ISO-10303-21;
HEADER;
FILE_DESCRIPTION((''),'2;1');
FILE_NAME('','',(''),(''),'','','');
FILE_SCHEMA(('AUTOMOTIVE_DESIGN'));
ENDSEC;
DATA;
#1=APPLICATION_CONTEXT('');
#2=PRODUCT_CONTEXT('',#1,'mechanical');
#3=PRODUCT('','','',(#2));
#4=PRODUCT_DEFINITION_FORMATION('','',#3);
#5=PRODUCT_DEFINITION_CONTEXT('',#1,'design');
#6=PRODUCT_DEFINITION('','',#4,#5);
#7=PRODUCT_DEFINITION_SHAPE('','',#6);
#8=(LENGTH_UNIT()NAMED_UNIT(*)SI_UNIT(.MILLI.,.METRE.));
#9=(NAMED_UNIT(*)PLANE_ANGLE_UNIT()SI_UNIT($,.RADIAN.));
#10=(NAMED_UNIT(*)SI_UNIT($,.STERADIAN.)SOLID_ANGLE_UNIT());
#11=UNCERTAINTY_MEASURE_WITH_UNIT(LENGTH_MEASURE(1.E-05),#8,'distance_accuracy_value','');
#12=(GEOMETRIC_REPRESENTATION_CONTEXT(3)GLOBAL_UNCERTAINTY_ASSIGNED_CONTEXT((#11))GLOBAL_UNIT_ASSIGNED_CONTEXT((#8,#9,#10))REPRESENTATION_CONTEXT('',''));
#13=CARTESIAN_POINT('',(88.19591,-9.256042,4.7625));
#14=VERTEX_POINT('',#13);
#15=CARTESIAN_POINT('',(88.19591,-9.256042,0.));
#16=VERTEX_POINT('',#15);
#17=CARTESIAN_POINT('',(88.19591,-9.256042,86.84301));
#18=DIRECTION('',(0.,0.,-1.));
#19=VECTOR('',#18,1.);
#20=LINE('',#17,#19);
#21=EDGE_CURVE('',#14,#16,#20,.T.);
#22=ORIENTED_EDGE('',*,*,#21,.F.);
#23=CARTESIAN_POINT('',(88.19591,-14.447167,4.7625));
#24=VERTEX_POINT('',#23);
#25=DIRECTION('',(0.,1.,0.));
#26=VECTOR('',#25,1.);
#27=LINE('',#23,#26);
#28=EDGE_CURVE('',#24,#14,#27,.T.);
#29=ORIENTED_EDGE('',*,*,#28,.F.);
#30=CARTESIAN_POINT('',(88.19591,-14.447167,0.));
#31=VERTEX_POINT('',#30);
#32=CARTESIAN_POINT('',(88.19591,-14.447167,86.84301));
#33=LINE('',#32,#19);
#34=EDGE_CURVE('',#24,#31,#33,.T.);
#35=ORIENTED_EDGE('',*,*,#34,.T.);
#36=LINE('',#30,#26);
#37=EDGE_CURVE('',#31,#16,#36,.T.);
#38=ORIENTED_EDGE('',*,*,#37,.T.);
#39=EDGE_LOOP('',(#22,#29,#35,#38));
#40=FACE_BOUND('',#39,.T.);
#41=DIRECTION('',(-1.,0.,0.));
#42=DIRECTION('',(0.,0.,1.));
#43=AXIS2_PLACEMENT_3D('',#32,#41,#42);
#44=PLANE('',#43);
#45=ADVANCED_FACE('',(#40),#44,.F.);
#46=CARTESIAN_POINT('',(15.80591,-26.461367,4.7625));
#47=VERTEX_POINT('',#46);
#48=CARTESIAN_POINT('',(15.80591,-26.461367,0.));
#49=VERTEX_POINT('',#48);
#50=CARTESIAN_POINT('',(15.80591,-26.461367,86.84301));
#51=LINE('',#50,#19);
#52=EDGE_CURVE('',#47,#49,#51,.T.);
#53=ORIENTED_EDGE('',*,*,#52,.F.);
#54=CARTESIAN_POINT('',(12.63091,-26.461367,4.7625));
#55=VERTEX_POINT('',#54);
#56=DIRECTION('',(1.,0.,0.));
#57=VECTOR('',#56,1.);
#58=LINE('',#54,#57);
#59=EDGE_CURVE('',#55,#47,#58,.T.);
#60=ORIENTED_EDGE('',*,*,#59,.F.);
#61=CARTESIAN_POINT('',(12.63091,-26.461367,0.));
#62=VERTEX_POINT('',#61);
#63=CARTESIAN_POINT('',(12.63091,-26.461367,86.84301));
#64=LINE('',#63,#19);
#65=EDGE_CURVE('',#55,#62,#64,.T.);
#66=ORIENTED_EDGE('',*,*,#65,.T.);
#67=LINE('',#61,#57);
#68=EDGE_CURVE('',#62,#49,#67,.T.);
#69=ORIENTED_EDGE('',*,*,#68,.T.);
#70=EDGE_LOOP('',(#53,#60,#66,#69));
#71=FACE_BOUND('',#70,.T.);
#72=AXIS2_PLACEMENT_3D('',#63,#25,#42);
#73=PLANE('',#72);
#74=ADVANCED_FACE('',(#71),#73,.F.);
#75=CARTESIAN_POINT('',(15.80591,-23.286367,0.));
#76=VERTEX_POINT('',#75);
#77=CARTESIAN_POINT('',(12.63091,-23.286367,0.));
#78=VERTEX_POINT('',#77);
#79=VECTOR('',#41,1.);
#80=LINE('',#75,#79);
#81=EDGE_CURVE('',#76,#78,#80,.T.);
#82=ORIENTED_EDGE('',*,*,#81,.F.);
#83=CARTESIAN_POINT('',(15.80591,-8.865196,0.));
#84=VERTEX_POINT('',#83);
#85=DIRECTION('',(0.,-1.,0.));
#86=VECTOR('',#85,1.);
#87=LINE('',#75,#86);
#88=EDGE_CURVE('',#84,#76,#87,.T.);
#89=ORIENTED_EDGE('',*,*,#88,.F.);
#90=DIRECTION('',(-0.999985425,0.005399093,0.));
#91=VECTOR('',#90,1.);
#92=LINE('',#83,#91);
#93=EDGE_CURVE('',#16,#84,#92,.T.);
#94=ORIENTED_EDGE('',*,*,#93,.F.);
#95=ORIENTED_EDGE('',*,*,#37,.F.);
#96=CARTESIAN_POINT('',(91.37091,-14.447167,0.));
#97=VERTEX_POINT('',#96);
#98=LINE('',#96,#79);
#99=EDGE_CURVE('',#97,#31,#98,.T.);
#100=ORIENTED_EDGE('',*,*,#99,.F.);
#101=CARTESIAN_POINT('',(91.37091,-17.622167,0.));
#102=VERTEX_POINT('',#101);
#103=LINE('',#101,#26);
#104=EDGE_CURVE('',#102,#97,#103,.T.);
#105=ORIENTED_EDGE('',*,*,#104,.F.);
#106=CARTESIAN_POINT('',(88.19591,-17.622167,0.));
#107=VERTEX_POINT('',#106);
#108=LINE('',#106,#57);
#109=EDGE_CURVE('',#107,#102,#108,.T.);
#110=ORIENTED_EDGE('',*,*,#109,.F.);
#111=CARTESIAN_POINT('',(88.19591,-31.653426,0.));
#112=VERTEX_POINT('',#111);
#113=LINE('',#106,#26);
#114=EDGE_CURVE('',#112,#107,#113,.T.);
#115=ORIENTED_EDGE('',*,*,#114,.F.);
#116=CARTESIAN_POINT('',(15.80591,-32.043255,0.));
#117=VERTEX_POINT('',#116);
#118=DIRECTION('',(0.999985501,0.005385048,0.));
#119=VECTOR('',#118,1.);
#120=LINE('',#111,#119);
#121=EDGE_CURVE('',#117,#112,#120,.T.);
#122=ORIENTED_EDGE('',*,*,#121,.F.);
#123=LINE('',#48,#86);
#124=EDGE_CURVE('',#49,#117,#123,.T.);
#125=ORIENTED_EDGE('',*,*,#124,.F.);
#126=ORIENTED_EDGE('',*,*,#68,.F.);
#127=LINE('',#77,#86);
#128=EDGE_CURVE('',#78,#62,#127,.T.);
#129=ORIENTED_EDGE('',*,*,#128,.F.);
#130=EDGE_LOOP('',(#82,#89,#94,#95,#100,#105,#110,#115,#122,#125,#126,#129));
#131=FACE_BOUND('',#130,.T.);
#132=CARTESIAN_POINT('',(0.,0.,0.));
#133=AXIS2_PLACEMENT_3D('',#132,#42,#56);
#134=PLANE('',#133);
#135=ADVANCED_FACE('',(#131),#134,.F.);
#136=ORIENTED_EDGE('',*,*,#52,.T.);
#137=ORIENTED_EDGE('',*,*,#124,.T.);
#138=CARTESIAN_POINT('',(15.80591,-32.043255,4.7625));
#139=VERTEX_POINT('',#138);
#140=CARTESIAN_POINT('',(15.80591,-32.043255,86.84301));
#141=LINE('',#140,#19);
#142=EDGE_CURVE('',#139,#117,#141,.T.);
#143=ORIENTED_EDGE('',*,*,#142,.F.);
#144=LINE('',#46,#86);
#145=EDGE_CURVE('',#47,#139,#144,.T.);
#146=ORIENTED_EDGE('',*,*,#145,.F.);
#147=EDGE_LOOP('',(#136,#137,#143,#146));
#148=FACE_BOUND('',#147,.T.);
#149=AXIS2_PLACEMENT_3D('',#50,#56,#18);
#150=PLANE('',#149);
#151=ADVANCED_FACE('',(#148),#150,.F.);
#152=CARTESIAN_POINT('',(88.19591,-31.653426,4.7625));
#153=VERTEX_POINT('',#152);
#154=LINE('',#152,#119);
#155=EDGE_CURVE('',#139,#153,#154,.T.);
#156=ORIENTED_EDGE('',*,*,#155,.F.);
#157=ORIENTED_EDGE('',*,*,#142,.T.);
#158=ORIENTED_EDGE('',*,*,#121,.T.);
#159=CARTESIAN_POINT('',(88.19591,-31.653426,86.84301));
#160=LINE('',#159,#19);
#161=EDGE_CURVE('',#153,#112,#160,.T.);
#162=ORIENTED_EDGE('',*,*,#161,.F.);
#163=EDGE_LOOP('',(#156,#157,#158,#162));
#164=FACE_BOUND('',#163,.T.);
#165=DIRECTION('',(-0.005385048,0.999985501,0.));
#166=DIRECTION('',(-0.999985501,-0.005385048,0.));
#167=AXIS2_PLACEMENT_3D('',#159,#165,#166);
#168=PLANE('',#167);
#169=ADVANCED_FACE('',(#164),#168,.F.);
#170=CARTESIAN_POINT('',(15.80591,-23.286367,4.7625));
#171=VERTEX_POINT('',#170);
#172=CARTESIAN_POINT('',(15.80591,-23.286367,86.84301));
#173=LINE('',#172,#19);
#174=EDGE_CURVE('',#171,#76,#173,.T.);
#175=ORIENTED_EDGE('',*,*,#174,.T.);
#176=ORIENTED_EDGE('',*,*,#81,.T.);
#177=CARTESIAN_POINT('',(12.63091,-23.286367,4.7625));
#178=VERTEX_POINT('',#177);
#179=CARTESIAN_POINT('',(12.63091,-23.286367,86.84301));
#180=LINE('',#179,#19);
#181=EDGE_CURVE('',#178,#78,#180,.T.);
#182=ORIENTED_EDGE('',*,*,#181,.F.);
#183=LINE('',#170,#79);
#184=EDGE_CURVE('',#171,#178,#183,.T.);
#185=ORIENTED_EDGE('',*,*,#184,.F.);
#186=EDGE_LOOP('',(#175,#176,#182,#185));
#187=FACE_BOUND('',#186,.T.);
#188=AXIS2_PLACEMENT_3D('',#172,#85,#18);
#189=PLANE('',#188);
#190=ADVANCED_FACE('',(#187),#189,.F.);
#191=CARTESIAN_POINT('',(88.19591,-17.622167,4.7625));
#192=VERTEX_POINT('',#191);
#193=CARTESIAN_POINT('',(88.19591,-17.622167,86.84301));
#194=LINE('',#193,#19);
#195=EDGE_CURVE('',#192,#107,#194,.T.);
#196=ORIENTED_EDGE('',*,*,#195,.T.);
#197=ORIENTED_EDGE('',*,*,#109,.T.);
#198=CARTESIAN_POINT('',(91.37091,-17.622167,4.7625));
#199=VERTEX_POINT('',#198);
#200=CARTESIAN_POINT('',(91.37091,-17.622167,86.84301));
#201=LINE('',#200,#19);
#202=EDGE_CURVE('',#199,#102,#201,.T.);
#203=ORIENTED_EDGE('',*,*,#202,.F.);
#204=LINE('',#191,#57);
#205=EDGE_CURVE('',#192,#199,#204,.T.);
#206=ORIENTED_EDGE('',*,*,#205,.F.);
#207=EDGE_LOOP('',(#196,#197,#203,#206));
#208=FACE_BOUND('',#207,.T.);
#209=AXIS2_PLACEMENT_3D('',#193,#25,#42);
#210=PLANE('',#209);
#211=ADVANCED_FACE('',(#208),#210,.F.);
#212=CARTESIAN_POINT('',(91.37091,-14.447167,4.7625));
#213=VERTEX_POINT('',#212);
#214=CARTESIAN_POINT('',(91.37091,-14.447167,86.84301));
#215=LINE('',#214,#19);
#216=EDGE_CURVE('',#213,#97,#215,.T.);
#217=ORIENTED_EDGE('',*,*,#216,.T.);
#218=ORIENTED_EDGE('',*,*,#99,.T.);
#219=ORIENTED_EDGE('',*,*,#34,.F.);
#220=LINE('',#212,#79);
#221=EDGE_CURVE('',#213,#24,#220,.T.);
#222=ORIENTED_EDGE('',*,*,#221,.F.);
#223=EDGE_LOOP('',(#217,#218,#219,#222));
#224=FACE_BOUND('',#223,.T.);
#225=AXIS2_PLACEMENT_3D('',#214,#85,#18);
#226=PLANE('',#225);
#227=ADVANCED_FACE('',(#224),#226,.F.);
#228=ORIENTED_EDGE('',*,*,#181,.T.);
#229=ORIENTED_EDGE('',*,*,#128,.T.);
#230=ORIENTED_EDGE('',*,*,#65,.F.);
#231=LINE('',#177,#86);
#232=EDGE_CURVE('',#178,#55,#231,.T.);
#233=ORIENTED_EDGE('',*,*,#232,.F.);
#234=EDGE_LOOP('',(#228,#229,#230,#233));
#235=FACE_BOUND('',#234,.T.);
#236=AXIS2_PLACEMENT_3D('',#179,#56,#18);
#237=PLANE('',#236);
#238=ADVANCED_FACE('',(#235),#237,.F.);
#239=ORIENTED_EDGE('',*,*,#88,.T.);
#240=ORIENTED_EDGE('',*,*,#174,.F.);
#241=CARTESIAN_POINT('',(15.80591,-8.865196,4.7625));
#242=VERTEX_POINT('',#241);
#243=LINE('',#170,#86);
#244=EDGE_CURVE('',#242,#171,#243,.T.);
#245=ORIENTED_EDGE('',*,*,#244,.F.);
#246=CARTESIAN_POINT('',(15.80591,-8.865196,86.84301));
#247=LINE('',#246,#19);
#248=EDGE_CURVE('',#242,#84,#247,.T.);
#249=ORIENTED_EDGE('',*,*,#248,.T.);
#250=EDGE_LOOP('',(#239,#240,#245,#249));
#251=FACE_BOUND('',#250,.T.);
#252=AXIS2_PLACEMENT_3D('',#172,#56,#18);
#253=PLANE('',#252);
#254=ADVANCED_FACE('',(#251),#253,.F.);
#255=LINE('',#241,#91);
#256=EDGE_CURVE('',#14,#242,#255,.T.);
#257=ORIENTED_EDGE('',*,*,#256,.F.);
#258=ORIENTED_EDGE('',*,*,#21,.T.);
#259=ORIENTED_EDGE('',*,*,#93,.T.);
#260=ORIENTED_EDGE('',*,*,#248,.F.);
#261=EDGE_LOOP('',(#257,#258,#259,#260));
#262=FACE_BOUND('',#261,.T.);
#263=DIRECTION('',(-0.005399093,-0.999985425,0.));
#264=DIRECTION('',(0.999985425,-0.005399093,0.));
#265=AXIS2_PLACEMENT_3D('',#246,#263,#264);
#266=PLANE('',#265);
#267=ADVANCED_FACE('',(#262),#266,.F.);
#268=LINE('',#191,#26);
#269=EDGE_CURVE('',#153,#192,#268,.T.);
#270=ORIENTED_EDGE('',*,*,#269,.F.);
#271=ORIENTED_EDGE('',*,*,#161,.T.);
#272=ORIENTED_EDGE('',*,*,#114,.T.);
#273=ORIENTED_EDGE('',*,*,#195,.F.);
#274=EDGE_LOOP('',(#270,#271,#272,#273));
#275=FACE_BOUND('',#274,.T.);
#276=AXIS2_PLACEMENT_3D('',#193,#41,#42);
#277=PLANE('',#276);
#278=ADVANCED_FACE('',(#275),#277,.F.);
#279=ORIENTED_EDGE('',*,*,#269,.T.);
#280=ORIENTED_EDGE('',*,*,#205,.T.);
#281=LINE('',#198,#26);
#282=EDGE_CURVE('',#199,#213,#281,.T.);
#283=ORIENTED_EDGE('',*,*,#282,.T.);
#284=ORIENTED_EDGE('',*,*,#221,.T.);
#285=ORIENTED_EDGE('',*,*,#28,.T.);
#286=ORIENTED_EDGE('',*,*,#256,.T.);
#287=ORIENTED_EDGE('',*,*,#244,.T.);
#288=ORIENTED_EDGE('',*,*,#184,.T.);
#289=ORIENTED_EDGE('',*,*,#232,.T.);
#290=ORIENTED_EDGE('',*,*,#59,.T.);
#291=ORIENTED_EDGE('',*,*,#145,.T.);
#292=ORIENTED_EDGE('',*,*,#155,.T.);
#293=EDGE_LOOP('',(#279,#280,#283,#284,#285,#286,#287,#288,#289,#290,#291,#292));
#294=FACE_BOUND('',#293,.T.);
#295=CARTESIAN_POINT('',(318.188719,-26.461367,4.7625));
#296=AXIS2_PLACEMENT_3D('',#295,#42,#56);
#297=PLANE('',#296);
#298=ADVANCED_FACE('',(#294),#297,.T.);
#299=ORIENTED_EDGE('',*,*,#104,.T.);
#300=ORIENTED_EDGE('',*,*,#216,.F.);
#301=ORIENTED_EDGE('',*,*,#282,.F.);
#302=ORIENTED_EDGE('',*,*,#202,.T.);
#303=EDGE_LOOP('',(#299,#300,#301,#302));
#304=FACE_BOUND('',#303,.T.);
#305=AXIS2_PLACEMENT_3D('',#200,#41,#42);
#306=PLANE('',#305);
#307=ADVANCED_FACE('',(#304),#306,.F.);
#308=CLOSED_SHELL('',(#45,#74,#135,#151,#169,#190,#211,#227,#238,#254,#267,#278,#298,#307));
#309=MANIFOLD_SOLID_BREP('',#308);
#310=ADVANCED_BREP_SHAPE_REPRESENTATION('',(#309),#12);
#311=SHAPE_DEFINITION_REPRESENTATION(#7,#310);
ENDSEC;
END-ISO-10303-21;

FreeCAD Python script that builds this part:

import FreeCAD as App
import Part
import Sketcher
Q = App.Units.Quantity


def add_polygon(sketch, points):
    """Adds a closed chain of lines whose ends are joined by coincident constraints."""
    first, n = sketch.GeometryCount, len(points)
    for a, b in zip(points, points[1:] + points[:1]):
        sketch.addGeometry(Part.LineSegment(App.Vector(*a, 0), App.Vector(*b, 0)), False)
    for i in range(n):
        sketch.addConstraint(Sketcher.Constraint("Coincident", first + i, 2, first + (i + 1) % n, 1))

doc = App.newDocument("Part")
params = doc.addObject("Spreadsheet::Sheet", "Params")
for row, (alias, value) in enumerate([
    ("sketch1_width", "0.125 in"),
    ("pad1_length", "0.1875 in"),
], start=1):
    params.set(f"A{row}", alias)
    params.set(f"B{row}", "=" + value)
    params.setAlias(f"B{row}", alias)

body = doc.addObject("PartDesign::Body", "Body")

sketch1 = doc.addObject("Sketcher::SketchObject", "Sketch")
body.addObject(sketch1)
sketch1.AttachmentSupport = (doc.XY_Plane, [""])
sketch1.MapMode = "FlatFace"
add_polygon(sketch1, [(15.80591, -23.286367), (12.63091, -23.286367), (12.63091, -26.461367), (15.80591, -26.461367), (15.80591, -32.043255), (88.19591, -31.653426), (88.19591, -17.622167), (91.37091, -17.622167), (91.37091, -14.447167), (88.19591, -14.447167), (88.19591, -9.256042), (15.80591, -8.865196)])
sketch1.addConstraint([
    Sketcher.Constraint("Horizontal", 0),
    Sketcher.Constraint("Vertical", 1),
    Sketcher.Constraint("Horizontal", 2),
    Sketcher.Constraint("Vertical", 3),
    Sketcher.Constraint("Vertical", 5),
    Sketcher.Constraint("Horizontal", 6),
    Sketcher.Constraint("Vertical", 7),
    Sketcher.Constraint("Horizontal", 8),
    Sketcher.Constraint("Vertical", 9),
    Sketcher.Constraint("Vertical", 11),
    Sketcher.Constraint("Vertical", 5, 2, 8, 2),
    Sketcher.Constraint("Vertical", 3, 2, 10, 2),
    Sketcher.Constraint("Equal", 2, 6),
    Sketcher.Constraint("Equal", 8, 1),
    Sketcher.Constraint("Equal", 1, 7),
    Sketcher.Constraint("DistanceX", 0, 2, 6, 2, Q("3.1 in")),
    Sketcher.Constraint("DistanceX", 0, 2, 0, 1, Q("0.125 in")),
    Sketcher.Constraint("DistanceY", 2, 2, 5, 2, Q("0.348 in")),
    Sketcher.Constraint("DistanceY", 5, 1, 5, 2, 14.031259),
    Sketcher.Constraint("DistanceY", 11, 2, 11, 1, 14.421172),
    Sketcher.Constraint("Distance", 4, 72.39105),
    Sketcher.Constraint("DistanceY", 9, 1, 9, 2, 5.191126),
    Sketcher.Constraint("DistanceX", -1, 1, 0, 2, 12.63091),
    Sketcher.Constraint("DistanceY", 9, 2, -1, 1, 9.256042),
])
sketch1.setExpression("Constraints[28]", "Params.sketch1_width")
pad1 = doc.addObject("PartDesign::Pad", "Pad")
body.addObject(pad1)
pad1.Profile = sketch1
pad1.setExpression("Length", "Params.pad1_length")

doc.recompute()
